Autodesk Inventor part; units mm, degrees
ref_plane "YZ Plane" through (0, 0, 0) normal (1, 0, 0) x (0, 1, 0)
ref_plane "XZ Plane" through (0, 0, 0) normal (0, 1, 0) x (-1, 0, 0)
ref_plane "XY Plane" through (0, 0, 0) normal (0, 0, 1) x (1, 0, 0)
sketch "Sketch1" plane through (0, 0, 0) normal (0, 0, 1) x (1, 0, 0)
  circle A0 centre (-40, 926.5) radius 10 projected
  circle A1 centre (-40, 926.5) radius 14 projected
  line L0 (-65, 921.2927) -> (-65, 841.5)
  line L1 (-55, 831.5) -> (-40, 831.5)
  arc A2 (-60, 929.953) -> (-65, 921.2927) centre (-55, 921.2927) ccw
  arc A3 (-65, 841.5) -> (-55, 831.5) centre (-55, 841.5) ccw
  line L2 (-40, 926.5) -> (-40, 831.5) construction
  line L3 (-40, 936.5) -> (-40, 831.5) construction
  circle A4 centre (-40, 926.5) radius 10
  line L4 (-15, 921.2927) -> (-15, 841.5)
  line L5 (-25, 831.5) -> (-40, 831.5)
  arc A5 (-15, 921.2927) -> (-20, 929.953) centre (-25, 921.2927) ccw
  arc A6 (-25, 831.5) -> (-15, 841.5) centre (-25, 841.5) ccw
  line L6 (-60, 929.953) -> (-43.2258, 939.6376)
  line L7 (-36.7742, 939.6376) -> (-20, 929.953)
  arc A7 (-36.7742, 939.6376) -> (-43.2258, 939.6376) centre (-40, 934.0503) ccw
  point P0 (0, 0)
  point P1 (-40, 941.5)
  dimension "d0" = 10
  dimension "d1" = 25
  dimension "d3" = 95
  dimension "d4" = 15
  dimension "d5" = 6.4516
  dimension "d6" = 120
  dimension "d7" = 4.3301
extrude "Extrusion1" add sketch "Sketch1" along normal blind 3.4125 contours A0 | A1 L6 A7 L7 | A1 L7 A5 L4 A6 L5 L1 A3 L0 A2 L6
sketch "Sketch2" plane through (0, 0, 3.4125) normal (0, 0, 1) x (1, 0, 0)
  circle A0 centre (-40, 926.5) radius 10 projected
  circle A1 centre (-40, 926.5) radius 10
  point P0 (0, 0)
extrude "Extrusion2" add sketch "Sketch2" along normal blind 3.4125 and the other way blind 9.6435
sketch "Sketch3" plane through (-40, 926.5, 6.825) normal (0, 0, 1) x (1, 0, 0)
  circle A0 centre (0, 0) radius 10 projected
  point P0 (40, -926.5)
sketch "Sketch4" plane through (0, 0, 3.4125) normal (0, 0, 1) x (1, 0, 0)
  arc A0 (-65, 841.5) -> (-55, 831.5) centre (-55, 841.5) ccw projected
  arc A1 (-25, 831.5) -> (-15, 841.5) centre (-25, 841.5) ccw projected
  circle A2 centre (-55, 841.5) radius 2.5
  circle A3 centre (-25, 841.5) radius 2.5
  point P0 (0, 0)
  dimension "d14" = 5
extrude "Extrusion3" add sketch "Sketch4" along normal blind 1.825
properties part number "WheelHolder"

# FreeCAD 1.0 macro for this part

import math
import FreeCAD as App
import Part
import Sketcher
Q = App.Units.Quantity

doc = App.newDocument("Part")
params = doc.addObject("Spreadsheet::Sheet", "Params")
for row, (alias, value) in enumerate([
    ("sketch1_radius", "10 mm"),
    ("pad1_length", "3.4125 mm"),
    ("sketch2_diameter", "20 mm"),
    ("pad2_length", "3.4125 mm"),
    ("pad2_length2", "9.6435 mm"),
    ("sketch3_diameter", "5 mm"),
    ("pad3_length", "1.825 mm"),
], start=1):
    params.set(f"A{row}", alias)
    params.set(f"B{row}", "=" + value)
    params.setAlias(f"B{row}", alias)

body = doc.addObject("PartDesign::Body", "Body")

# Sketch on XY plane
sketch1 = body.newObject("Sketcher::SketchObject", "Sketch")
sketch1.AttachmentSupport = (doc.getObject("XY_Plane"), [""])
sketch1.MapMode = "FlatFace"
sketch1.addGeometry(Part.LineSegment(App.Vector(-43, 940, 0), App.Vector(-60, 930, 0)), False)
sketch1.addGeometry(Part.ArcOfCircle(Part.Circle(App.Vector(-55, 921, 0), App.Vector(0, 0, 1), 10), math.radians(120), math.radians(180)), False)
sketch1.addGeometry(Part.LineSegment(App.Vector(-65, 921, 0), App.Vector(-65, 842, 0)), False)
sketch1.addGeometry(Part.ArcOfCircle(Part.Circle(App.Vector(-55, 842, 0), App.Vector(0, 0, 1), 10), math.radians(180), math.radians(270)), False)
sketch1.addGeometry(Part.LineSegment(App.Vector(-55, 832, 0), App.Vector(-25, 832, 0)), False)
sketch1.addGeometry(Part.ArcOfCircle(Part.Circle(App.Vector(-25, 842, 0), App.Vector(0, 0, 1), 10), math.radians(-90), math.radians(0)), False)
sketch1.addGeometry(Part.LineSegment(App.Vector(-15, 842, 0), App.Vector(-15, 921, 0)), False)
sketch1.addGeometry(Part.ArcOfCircle(Part.Circle(App.Vector(-25, 921, 0), App.Vector(0, 0, 1), 10), math.radians(0), math.radians(60)), False)
sketch1.addGeometry(Part.LineSegment(App.Vector(-20, 930, 0), App.Vector(-37, 940, 0)), False)
sketch1.addGeometry(Part.ArcOfCircle(Part.Circle(App.Vector(-40, 934, 0), App.Vector(0, 0, 1), 6), math.radians(60), math.radians(120)), False)
sketch1.addConstraint(Sketcher.Constraint("Tangent", 0, 2, 1, 1))
sketch1.addConstraint(Sketcher.Constraint("Tangent", 1, 2, 2, 1))
sketch1.addConstraint(Sketcher.Constraint("Tangent", 2, 2, 3, 1))
sketch1.addConstraint(Sketcher.Constraint("Tangent", 3, 2, 4, 1))
sketch1.addConstraint(Sketcher.Constraint("Tangent", 4, 2, 5, 1))
sketch1.addConstraint(Sketcher.Constraint("Tangent", 5, 2, 6, 1))
sketch1.addConstraint(Sketcher.Constraint("Tangent", 6, 2, 7, 1))
sketch1.addConstraint(Sketcher.Constraint("Tangent", 7, 2, 8, 1))
sketch1.addConstraint(Sketcher.Constraint("Tangent", 8, 2, 9, 1))
sketch1.addConstraint(Sketcher.Constraint("Tangent", 9, 2, 0, 1))
sketch1.addConstraint(Sketcher.Constraint("Vertical", 2))
sketch1.addConstraint(Sketcher.Constraint("Horizontal", 4))
sketch1.addConstraint(Sketcher.Constraint("Vertical", 6))
sketch1.addConstraint(Sketcher.Constraint("Equal", 1, 3))
sketch1.addConstraint(Sketcher.Constraint("Equal", 3, 5))
sketch1.addConstraint(Sketcher.Constraint("Equal", 5, 7))
sketch1.addConstraint(Sketcher.Constraint("Horizontal", 1, 3, 7, 3))
sketch1.addConstraint(Sketcher.Constraint("Horizontal", 0, 2, 7, 2))
sketch1.addConstraint(Sketcher.Constraint("Radius", 1, 10.0))
sketch1.addConstraint(Sketcher.Constraint("DistanceX", 5, 3, -1, 1, 25.0))
sketch1.addConstraint(Sketcher.Constraint("DistanceX", 1, 3, 9, 3, 15.0))
sketch1.addConstraint(Sketcher.Constraint("Radius", 9, 6.4516))
sketch1.addConstraint(Sketcher.Constraint("Angle", 0, Q("-150 deg")))
sketch1.addConstraint(Sketcher.Constraint("DistanceY", -1, 1, 3, 3, 841.5))
sketch1.addConstraint(Sketcher.Constraint("DistanceY", 2, 2, 2, 1, 79.7927))
sketch1.setExpression("Constraints[18]", "Params.sketch1_radius")
pad1 = body.newObject("PartDesign::Pad", "Pad")
pad1.Profile = sketch1
pad1.setExpression("Length", "Params.pad1_length")

# Sketch on XY plane
sketch2 = body.newObject("Sketcher::SketchObject", "Sketch001")
sketch2.AttachmentSupport = (doc.getObject("XY_Plane"), [""])
sketch2.MapMode = "FlatFace"
sketch2.AttachmentOffset = App.Placement(App.Vector(0, 0, 3.4125), App.Rotation())
sketch2.addGeometry(Part.Circle(App.Vector(-40, 926, 0), App.Vector(0, 0, 1), 10), False)
sketch2.addConstraint(Sketcher.Constraint("Diameter", 0, 20.0))
sketch2.addConstraint(Sketcher.Constraint("DistanceX", 0, 3, -1, 1, 40.0))
sketch2.addConstraint(Sketcher.Constraint("DistanceY", -1, 1, 0, 3, 926.5))
sketch2.setExpression("Constraints[0]", "Params.sketch2_diameter")
pad2 = body.newObject("PartDesign::Pad", "Pad001")
pad2.Profile = sketch2
pad2.Type = "TwoLengths"
pad2.setExpression("Length", "Params.pad2_length")
pad2.setExpression("Length2", "Params.pad2_length2")

# Sketch on XY plane
sketch3 = body.newObject("Sketcher::SketchObject", "Sketch002")
sketch3.AttachmentSupport = (doc.getObject("XY_Plane"), [""])
sketch3.MapMode = "FlatFace"
sketch3.AttachmentOffset = App.Placement(App.Vector(0, 0, 3.4125), App.Rotation())
sketch3.addGeometry(Part.Circle(App.Vector(-55, 841.5, 0), App.Vector(0, 0, 1), 2.5), False)
sketch3.addGeometry(Part.Circle(App.Vector(-25, 841.5, 0), App.Vector(0, 0, 1), 2.5), False)
sketch3.addConstraint(Sketcher.Constraint("Equal", 0, 1))
sketch3.addConstraint(Sketcher.Constraint("Horizontal", 0, 3, 1, 3))
sketch3.addConstraint(Sketcher.Constraint("Diameter", 0, 5.0))
sketch3.addConstraint(Sketcher.Constraint("DistanceX", 0, 3, -1, 1, 55.0))
sketch3.addConstraint(Sketcher.Constraint("DistanceX", 1, 3, -1, 1, 25.0))
sketch3.addConstraint(Sketcher.Constraint("DistanceY", -1, 1, 0, 3, 841.5))
sketch3.setExpression("Constraints[2]", "Params.sketch3_diameter")
pad3 = body.newObject("PartDesign::Pad", "Pad002")
pad3.Profile = sketch3
pad3.setExpression("Length", "Params.pad3_length")

doc.recompute()
